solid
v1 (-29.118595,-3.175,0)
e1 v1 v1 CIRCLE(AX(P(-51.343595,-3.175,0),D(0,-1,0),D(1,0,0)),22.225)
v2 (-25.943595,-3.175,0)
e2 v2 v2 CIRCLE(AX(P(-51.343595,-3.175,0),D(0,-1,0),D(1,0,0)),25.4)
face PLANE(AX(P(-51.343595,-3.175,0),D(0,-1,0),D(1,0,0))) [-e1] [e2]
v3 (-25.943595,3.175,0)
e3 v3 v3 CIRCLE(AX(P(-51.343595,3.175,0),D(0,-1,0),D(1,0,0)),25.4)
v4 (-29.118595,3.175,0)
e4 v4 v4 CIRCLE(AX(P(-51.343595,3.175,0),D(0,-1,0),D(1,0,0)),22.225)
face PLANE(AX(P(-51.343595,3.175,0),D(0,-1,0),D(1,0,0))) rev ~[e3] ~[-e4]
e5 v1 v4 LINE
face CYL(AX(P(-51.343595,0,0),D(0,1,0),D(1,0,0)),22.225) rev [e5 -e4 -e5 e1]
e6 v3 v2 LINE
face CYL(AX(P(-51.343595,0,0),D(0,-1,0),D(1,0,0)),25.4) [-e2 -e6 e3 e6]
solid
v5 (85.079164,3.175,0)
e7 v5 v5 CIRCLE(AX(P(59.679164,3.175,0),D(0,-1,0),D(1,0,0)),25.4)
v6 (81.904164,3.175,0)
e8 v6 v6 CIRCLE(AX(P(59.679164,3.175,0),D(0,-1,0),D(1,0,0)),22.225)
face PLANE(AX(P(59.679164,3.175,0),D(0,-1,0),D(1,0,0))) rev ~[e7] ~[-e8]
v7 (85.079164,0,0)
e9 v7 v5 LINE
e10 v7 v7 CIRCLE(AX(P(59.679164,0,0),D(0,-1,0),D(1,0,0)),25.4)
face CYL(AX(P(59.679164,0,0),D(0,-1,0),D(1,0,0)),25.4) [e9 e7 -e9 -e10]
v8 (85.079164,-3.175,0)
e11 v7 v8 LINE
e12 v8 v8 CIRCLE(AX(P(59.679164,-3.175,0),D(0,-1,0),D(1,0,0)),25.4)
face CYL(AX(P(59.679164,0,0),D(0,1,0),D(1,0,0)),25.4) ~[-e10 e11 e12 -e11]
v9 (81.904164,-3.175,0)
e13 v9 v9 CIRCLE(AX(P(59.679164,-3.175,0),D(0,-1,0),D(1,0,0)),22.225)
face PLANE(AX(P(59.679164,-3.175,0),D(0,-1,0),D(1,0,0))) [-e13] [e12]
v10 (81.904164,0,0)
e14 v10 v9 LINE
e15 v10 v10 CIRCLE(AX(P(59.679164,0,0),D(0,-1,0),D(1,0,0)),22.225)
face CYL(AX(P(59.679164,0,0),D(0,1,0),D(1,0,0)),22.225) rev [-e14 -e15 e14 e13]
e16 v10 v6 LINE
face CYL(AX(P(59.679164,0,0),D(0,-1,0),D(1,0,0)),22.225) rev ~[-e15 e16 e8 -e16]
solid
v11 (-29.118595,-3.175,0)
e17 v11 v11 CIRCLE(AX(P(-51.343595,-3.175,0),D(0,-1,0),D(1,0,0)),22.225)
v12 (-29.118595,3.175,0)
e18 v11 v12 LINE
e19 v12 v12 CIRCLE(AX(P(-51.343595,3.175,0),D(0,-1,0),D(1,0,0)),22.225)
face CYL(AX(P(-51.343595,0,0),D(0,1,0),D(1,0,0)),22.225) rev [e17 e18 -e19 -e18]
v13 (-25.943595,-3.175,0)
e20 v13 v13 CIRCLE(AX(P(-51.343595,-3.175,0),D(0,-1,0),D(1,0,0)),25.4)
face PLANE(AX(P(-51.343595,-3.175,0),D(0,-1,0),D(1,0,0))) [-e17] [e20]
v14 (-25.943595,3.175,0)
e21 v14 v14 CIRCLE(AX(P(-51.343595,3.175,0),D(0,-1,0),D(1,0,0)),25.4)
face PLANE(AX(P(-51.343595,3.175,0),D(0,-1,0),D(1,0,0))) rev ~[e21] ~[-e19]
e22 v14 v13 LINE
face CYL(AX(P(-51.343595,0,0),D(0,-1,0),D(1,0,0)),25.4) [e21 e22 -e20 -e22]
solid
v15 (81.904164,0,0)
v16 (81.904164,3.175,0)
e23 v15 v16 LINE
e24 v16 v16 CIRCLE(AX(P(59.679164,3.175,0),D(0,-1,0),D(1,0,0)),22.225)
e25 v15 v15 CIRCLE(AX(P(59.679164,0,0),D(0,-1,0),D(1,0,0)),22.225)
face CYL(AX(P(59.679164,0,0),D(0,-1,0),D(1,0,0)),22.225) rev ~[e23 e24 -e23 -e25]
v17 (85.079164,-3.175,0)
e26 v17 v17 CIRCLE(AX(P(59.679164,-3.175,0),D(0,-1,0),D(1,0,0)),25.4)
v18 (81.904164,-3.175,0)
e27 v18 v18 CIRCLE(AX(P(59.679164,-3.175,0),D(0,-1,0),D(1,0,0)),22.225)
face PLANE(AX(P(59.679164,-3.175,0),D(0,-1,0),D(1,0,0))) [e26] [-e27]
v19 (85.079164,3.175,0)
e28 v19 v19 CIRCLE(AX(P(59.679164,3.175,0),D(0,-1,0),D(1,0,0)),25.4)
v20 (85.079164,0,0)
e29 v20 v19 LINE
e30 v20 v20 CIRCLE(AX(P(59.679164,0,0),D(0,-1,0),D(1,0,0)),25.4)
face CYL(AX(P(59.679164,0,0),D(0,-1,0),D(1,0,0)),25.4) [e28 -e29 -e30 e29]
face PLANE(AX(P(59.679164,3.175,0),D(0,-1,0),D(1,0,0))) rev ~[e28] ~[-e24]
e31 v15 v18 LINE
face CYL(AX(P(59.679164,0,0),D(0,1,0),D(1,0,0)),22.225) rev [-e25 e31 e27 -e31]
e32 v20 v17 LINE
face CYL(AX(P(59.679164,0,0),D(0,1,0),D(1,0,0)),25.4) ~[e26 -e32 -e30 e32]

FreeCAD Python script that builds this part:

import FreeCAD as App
import Part
import Sketcher
from FreeCAD import Vector
Q = App.Units.Quantity

doc = App.newDocument("Part")
params = doc.addObject("Spreadsheet::Sheet", "Params")
for row, (alias, value) in enumerate([
    ("sketch1_diameter", "2 in"),
    ("sketch1_diameter2", "1.75 in"),
    ("pad1_length", "0.25 in"),
    ("sketch2_diameter", "2 in"),
    ("sketch2_diameter2", "1.75 in"),
    ("pad2_length", "0.25 in"),
], start=1):
    params.set(f"A{row}", alias)
    params.set(f"B{row}", "=" + value)
    params.setAlias(f"B{row}", alias)

body = doc.addObject("PartDesign::Body", "Body")
body.AllowCompound = True

# Sketch on XZ plane
sketch1 = body.newObject("Sketcher::SketchObject", "Sketch")
sketch1.AttachmentSupport = (doc.getObject("XZ_Plane"), [""])
sketch1.MapMode = "FlatFace"
sketch1.addGeometry(Part.Circle(Vector(60, 0, 0), Vector(0, 0, 1), 25), False)
sketch1.addGeometry(Part.Circle(Vector(60, 0, 0), Vector(0, 0, 1), 22), False)
sketch1.addGeometry(Part.Circle(Vector(-51, 0, 0), Vector(0, 0, 1), 25), False)
sketch1.addGeometry(Part.Circle(Vector(-51, 0, 0), Vector(0, 0, 1), 22), False)
sketch1.addConstraint(Sketcher.Constraint("Coincident", 1, 3, 0, 3))
sketch1.addConstraint(Sketcher.Constraint("Coincident", 3, 3, 2, 3))
sketch1.addConstraint(Sketcher.Constraint("Equal", 0, 2))
sketch1.addConstraint(Sketcher.Constraint("Equal", 1, 3))
sketch1.addConstraint(Sketcher.Constraint("PointOnObject", 0, 3, -1))
sketch1.addConstraint(Sketcher.Constraint("PointOnObject", 2, 3, -1))
sketch1.addConstraint(Sketcher.Constraint("Diameter", 0, Q("2 in")))
sketch1.addConstraint(Sketcher.Constraint("Diameter", 1, Q("1.75 in")))
sketch1.addConstraint(Sketcher.Constraint("DistanceX", 2, 3, 0, 3, Q("111.022759 mm")))
sketch1.addConstraint(Sketcher.Constraint("DistanceX", -1, 1, 0, 3, Q("59.679164 mm")))
sketch1.setExpression("Constraints[6]", "Params.sketch1_diameter")
sketch1.setExpression("Constraints[7]", "Params.sketch1_diameter2")
pad1 = body.newObject("PartDesign::Pad", "Pad")
pad1.Profile = sketch1
pad1.setExpression("Length", "Params.pad1_length")
pad1.Midplane = True
body2 = doc.addObject("PartDesign::Body", "Body001")
body2.AllowCompound = True

# Sketch on XZ plane
sketch2 = body2.newObject("Sketcher::SketchObject", "Sketch001")
sketch2.AttachmentSupport = (doc.getObject("XZ_Plane001"), [""])
sketch2.MapMode = "FlatFace"
sketch2.addGeometry(Part.Circle(Vector(60, 0, 0), Vector(0, 0, 1), 25), False)
sketch2.addGeometry(Part.Circle(Vector(60, 0, 0), Vector(0, 0, 1), 22), False)
sketch2.addGeometry(Part.Circle(Vector(-51, 0, 0), Vector(0, 0, 1), 25), False)
sketch2.addGeometry(Part.Circle(Vector(-51, 0, 0), Vector(0, 0, 1), 22), False)
sketch2.addConstraint(Sketcher.Constraint("Coincident", 1, 3, 0, 3))
sketch2.addConstraint(Sketcher.Constraint("Coincident", 3, 3, 2, 3))
sketch2.addConstraint(Sketcher.Constraint("Equal", 0, 2))
sketch2.addConstraint(Sketcher.Constraint("Equal", 1, 3))
sketch2.addConstraint(Sketcher.Constraint("PointOnObject", 0, 3, -1))
sketch2.addConstraint(Sketcher.Constraint("PointOnObject", 2, 3, -1))
sketch2.addConstraint(Sketcher.Constraint("Diameter", 0, Q("2 in")))
sketch2.addConstraint(Sketcher.Constraint("Diameter", 1, Q("1.75 in")))
sketch2.addConstraint(Sketcher.Constraint("DistanceX", 2, 3, 0, 3, Q("111.022759 mm")))
sketch2.addConstraint(Sketcher.Constraint("DistanceX", -1, 1, 0, 3, Q("59.679164 mm")))
sketch2.setExpression("Constraints[6]", "Params.sketch2_diameter")
sketch2.setExpression("Constraints[7]", "Params.sketch2_diameter2")
pad2 = body2.newObject("PartDesign::Pad", "Pad001")
pad2.Profile = sketch2
pad2.setExpression("Length", "Params.pad2_length")
pad2.Midplane = True

doc.recompute()
